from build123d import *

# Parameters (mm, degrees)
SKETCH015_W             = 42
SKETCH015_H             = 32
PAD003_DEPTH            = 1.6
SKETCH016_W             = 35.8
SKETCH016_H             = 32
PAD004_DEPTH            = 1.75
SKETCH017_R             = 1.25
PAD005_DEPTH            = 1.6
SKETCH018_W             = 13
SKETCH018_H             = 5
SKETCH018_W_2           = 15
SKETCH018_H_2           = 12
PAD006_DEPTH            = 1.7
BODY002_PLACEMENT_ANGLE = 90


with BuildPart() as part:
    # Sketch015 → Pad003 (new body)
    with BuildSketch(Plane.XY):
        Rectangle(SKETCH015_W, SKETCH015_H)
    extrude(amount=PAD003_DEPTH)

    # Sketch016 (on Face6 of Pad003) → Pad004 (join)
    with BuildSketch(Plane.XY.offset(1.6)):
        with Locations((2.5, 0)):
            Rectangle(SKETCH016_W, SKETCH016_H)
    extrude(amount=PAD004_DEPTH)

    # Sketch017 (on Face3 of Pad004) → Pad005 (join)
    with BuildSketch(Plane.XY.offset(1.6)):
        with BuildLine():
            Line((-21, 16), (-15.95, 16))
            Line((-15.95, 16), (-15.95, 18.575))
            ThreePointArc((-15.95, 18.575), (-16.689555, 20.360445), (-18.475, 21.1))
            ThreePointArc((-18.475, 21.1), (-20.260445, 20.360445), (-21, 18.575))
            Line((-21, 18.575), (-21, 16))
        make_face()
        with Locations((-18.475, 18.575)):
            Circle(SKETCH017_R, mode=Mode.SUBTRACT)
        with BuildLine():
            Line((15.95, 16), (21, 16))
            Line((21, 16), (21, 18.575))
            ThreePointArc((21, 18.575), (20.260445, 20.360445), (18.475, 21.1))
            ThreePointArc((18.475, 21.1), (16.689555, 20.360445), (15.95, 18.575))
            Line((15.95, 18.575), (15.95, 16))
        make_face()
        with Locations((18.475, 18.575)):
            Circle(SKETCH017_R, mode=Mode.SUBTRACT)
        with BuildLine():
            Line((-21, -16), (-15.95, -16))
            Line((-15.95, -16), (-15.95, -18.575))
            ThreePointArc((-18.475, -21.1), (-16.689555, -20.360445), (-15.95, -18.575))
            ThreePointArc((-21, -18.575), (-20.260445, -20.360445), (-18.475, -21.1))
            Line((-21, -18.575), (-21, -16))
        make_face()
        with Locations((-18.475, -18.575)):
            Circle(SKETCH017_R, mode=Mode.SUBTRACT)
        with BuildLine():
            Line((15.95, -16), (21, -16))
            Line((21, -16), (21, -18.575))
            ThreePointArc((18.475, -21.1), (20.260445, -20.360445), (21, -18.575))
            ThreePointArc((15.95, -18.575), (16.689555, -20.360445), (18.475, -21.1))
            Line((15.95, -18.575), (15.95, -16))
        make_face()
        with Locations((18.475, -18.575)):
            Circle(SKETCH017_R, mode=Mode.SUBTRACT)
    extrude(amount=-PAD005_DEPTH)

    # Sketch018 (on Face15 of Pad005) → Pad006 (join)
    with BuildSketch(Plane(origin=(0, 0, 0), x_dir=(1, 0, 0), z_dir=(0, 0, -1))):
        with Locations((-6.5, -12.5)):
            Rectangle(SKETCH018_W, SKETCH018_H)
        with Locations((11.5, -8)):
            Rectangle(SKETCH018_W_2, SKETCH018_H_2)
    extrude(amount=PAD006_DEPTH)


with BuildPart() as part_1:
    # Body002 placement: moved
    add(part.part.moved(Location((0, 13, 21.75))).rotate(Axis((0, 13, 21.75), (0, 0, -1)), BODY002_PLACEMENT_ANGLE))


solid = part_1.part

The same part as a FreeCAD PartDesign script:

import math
import FreeCAD as App
import Part
import Sketcher


def add_polygon(sketch, points):
    """Adds a closed chain of lines whose ends are joined by coincident constraints."""
    first, n = sketch.GeometryCount, len(points)
    for a, b in zip(points, points[1:] + points[:1]):
        sketch.addGeometry(Part.LineSegment(App.Vector(*a, 0), App.Vector(*b, 0)), False)
    for i in range(n):
        sketch.addConstraint(Sketcher.Constraint("Coincident", first + i, 2, first + (i + 1) % n, 1))

doc = App.newDocument("Part")
body = doc.addObject("PartDesign::Body", "Body")

sketch1 = body.newObject("Sketcher::SketchObject", "Sketch")
sketch1.AttachmentSupport = (doc.getObject("XY_Plane"), [""])
sketch1.MapMode = "FlatFace"
add_polygon(sketch1, [(-21, 16), (-21, -16), (21, -16), (21, 16)])
sketch1.addConstraint(Sketcher.Constraint("Vertical", 0))
sketch1.addConstraint(Sketcher.Constraint("Horizontal", 1))
sketch1.addConstraint(Sketcher.Constraint("Vertical", 2))
sketch1.addConstraint(Sketcher.Constraint("Horizontal", 3))
sketch1.addConstraint(Sketcher.Constraint("Symmetric", 0, 2, 2, 2, -1, 1))
sketch1.addConstraint(Sketcher.Constraint("DistanceX", 1, 1, 1, 2, 42.0))
sketch1.addConstraint(Sketcher.Constraint("DistanceY", 0, 2, 0, 1, 32.0))
pad1 = body.newObject("PartDesign::Pad", "Pad")
pad1.Profile = sketch1
pad1.Length = 1.6

sketch2 = body.newObject("Sketcher::SketchObject", "Sketch001")
sketch2.AttachmentSupport = (doc.getObject("XY_Plane"), [""])
sketch2.MapMode = "FlatFace"
sketch2.AttachmentOffset = App.Placement(App.Vector(0, 0, 1.6), App.Rotation())
add_polygon(sketch2, [(-15.4, 16), (-15.4, -16), (20.4, -16), (20.4, 16)])
sketch2.addConstraint(Sketcher.Constraint("Vertical", 0))
sketch2.addConstraint(Sketcher.Constraint("Horizontal", 1))
sketch2.addConstraint(Sketcher.Constraint("Vertical", 2))
sketch2.addConstraint(Sketcher.Constraint("Horizontal", 3))
sketch2.addConstraint(Sketcher.Constraint("DistanceY", 0, 2, 0, 1, 32.0))
sketch2.addConstraint(Sketcher.Constraint("DistanceX", 1, 1, 1, 2, 35.8))
sketch2.addConstraint(Sketcher.Constraint("DistanceY", 0, 2, -1, 1, 16.0))
sketch2.addConstraint(Sketcher.Constraint("DistanceX", 0, 2, -1, 1, 15.4))
pad2 = body.newObject("PartDesign::Pad", "Pad001")
pad2.Profile = sketch2
pad2.Length = 1.75

sketch3 = body.newObject("Sketcher::SketchObject", "Sketch002")
sketch3.AttachmentSupport = (doc.getObject("XY_Plane"), [""])
sketch3.MapMode = "FlatFace"
sketch3.AttachmentOffset = App.Placement(App.Vector(0, 0, 1.6), App.Rotation())
sketch3.addGeometry(Part.LineSegment(App.Vector(-21, 16, 0), App.Vector(-15.95, 16, 0)), False)
sketch3.addGeometry(Part.LineSegment(App.Vector(-15.95, 16, 0), App.Vector(-15.95, 18.575, 0)), False)
sketch3.addGeometry(Part.ArcOfCircle(Part.Circle(App.Vector(-18.474999, 18.575001, 0), App.Vector(0, 0, 1), 2.524999), math.radians(-0.000029), math.radians(90.000029)), False)
sketch3.addGeometry(Part.ArcOfCircle(Part.Circle(App.Vector(-18.475001, 18.575001, 0), App.Vector(0, 0, 1), 2.524999), math.radians(89.999971), math.radians(180.000029)), False)
sketch3.addGeometry(Part.LineSegment(App.Vector(-21, 18.575, 0), App.Vector(-21, 16, 0)), False)
sketch3.addGeometry(Part.Circle(App.Vector(-18.475, 18.575, 0), App.Vector(0, 0, 1), 1.25), False)
sketch3.addGeometry(Part.LineSegment(App.Vector(15.95, 16, 0), App.Vector(21, 16, 0)), False)
sketch3.addGeometry(Part.LineSegment(App.Vector(21, 16, 0), App.Vector(21, 18.575, 0)), False)
sketch3.addGeometry(Part.ArcOfCircle(Part.Circle(App.Vector(18.475001, 18.575001, 0), App.Vector(0, 0, 1), 2.524999), math.radians(-0.000029), math.radians(90.000029)), False)
sketch3.addGeometry(Part.ArcOfCircle(Part.Circle(App.Vector(18.474999, 18.575001, 0), App.Vector(0, 0, 1), 2.524999), math.radians(89.999971), math.radians(180.000029)), False)
sketch3.addGeometry(Part.LineSegment(App.Vector(15.95, 18.575, 0), App.Vector(15.95, 16, 0)), False)
sketch3.addGeometry(Part.Circle(App.Vector(18.475, 18.575, 0), App.Vector(0, 0, 1), 1.25), False)
sketch3.addGeometry(Part.LineSegment(App.Vector(-15.95, -16, 0), App.Vector(-21, -16, 0)), False)
sketch3.addGeometry(Part.LineSegment(App.Vector(-21, -16, 0), App.Vector(-21, -18.575, 0)), False)
sketch3.addGeometry(Part.ArcOfCircle(Part.Circle(App.Vector(-18.475001, -18.575001, 0), App.Vector(0, 0, 1), 2.524999), math.radians(179.999971), math.radians(270.000029)), False)
sketch3.addGeometry(Part.ArcOfCircle(Part.Circle(App.Vector(-18.474999, -18.575001, 0), App.Vector(0, 0, 1), 2.524999), math.radians(-90.000029), math.radians(0.000029)), False)
sketch3.addGeometry(Part.LineSegment(App.Vector(-15.95, -18.575, 0), App.Vector(-15.95, -16, 0)), False)
sketch3.addGeometry(Part.Circle(App.Vector(-18.475, -18.575, 0), App.Vector(0, 0, 1), 1.25), False)
sketch3.addGeometry(Part.LineSegment(App.Vector(21, -16, 0), App.Vector(15.95, -16, 0)), False)
sketch3.addGeometry(Part.LineSegment(App.Vector(15.95, -16, 0), App.Vector(15.95, -18.575, 0)), False)
sketch3.addGeometry(Part.ArcOfCircle(Part.Circle(App.Vector(18.474999, -18.575001, 0), App.Vector(0, 0, 1), 2.524999), math.radians(179.999971), math.radians(270.000029)), False)
sketch3.addGeometry(Part.ArcOfCircle(Part.Circle(App.Vector(18.475001, -18.575001, 0), App.Vector(0, 0, 1), 2.524999), math.radians(-90.000029), math.radians(0.000029)), False)
sketch3.addGeometry(Part.LineSegment(App.Vector(21, -18.575, 0), App.Vector(21, -16, 0)), False)
sketch3.addGeometry(Part.Circle(App.Vector(18.475, -18.575, 0), App.Vector(0, 0, 1), 1.25), False)
sketch3.addConstraint(Sketcher.Constraint("Coincident", 0, 2, 1, 1))
sketch3.addConstraint(Sketcher.Constraint("Tangent", 1, 2, 2, 1))
sketch3.addConstraint(Sketcher.Constraint("Tangent", 2, 2, 3, 1))
sketch3.addConstraint(Sketcher.Constraint("Tangent", 3, 2, 4, 1))
sketch3.addConstraint(Sketcher.Constraint("Coincident", 4, 2, 0, 1))
sketch3.addConstraint(Sketcher.Constraint("Coincident", 6, 2, 7, 1))
sketch3.addConstraint(Sketcher.Constraint("Tangent", 7, 2, 8, 1))
sketch3.addConstraint(Sketcher.Constraint("Tangent", 8, 2, 9, 1))
sketch3.addConstraint(Sketcher.Constraint("Tangent", 9, 2, 10, 1))
sketch3.addConstraint(Sketcher.Constraint("Coincident", 10, 2, 6, 1))
sketch3.addConstraint(Sketcher.Constraint("Coincident", 12, 2, 13, 1))
sketch3.addConstraint(Sketcher.Constraint("Tangent", 13, 2, 14, 1))
sketch3.addConstraint(Sketcher.Constraint("Tangent", 14, 2, 15, 1))
sketch3.addConstraint(Sketcher.Constraint("Tangent", 15, 2, 16, 1))
sketch3.addConstraint(Sketcher.Constraint("Coincident", 16, 2, 12, 1))
sketch3.addConstraint(Sketcher.Constraint("Coincident", 18, 2, 19, 1))
sketch3.addConstraint(Sketcher.Constraint("Tangent", 19, 2, 20, 1))
sketch3.addConstraint(Sketcher.Constraint("Tangent", 20, 2, 21, 1))
sketch3.addConstraint(Sketcher.Constraint("Tangent", 21, 2, 22, 1))
sketch3.addConstraint(Sketcher.Constraint("Coincident", 22, 2, 18, 1))
sketch3.addConstraint(Sketcher.Constraint("Horizontal", 0))
sketch3.addConstraint(Sketcher.Constraint("Vertical", 1))
sketch3.addConstraint(Sketcher.Constraint("Vertical", 4))
sketch3.addConstraint(Sketcher.Constraint("Horizontal", 6))
sketch3.addConstraint(Sketcher.Constraint("Vertical", 7))
sketch3.addConstraint(Sketcher.Constraint("Vertical", 10))
sketch3.addConstraint(Sketcher.Constraint("Horizontal", 12))
sketch3.addConstraint(Sketcher.Constraint("Vertical", 13))
sketch3.addConstraint(Sketcher.Constraint("Vertical", 16))
sketch3.addConstraint(Sketcher.Constraint("Horizontal", 18))
sketch3.addConstraint(Sketcher.Constraint("Vertical", 19))
sketch3.addConstraint(Sketcher.Constraint("Vertical", 22))
sketch3.addConstraint(Sketcher.Constraint("Coincident", 5, 3, 2, 3))
sketch3.addConstraint(Sketcher.Constraint("Coincident", 11, 3, 8, 3))
sketch3.addConstraint(Sketcher.Constraint("Coincident", 17, 3, 14, 3))
sketch3.addConstraint(Sketcher.Constraint("Coincident", 23, 3, 20, 3))
sketch3.addConstraint(Sketcher.Constraint("Equal", 2, 3))
sketch3.addConstraint(Sketcher.Constraint("Equal", 3, 8))
sketch3.addConstraint(Sketcher.Constraint("Equal", 8, 9))
sketch3.addConstraint(Sketcher.Constraint("Equal", 5, 11))
sketch3.addConstraint(Sketcher.Constraint("Equal", 9, 14))
sketch3.addConstraint(Sketcher.Constraint("Equal", 14, 15))
sketch3.addConstraint(Sketcher.Constraint("Equal", 11, 17))
sketch3.addConstraint(Sketcher.Constraint("Equal", 15, 20))
sketch3.addConstraint(Sketcher.Constraint("Equal", 20, 21))
sketch3.addConstraint(Sketcher.Constraint("Equal", 17, 23))
sketch3.addConstraint(Sketcher.Constraint("Symmetric", 8, 3, 14, 3, -1, 1))
sketch3.addConstraint(Sketcher.Constraint("Symmetric", 2, 3, 20, 3, -1, 1))
sketch3.addConstraint(Sketcher.Constraint("Symmetric", 2, 3, 8, 3, -2))
sketch3.addConstraint(Sketcher.Constraint("Horizontal", 4, 2, 6, 2))
sketch3.addConstraint(Sketcher.Constraint("Horizontal", 16, 2, 18, 2))
sketch3.addConstraint(Sketcher.Constraint("Vertical", 17, 3, 2, 2))
sketch3.addConstraint(Sketcher.Constraint("Vertical", 23, 3, 8, 2))
sketch3.addConstraint(Sketcher.Constraint("Vertical", 2, 2, 14, 2))
sketch3.addConstraint(Sketcher.Constraint("Vertical", 8, 2, 20, 2))
sketch3.addConstraint(Sketcher.Constraint("Equal", 10, 13))
sketch3.addConstraint(Sketcher.Constraint("Diameter", 5, 2.5))
sketch3.addConstraint(Sketcher.Constraint("DistanceY", -1, 1, 0, 2, 16.0))
sketch3.addConstraint(Sketcher.Constraint("DistanceX", 3, 2, -1, 1, 21.0))
sketch3.addConstraint(Sketcher.Constraint("Radius", 2, 2.524999))
sketch3.addConstraint(Sketcher.Constraint("DistanceY", -1, 1, 2, 2, 21.1))
pad3 = body.newObject("PartDesign::Pad", "Pad002")
pad3.Profile = sketch3
pad3.Length = 1.6
pad3.Reversed = True

sketch4 = body.newObject("Sketcher::SketchObject", "Sketch003")
sketch4.AttachmentSupport = (doc.getObject("XY_Plane"), [""])
sketch4.MapMode = "FlatFace"
add_polygon(sketch4, [(-13, 10), (-13, 15), (0, 15), (0, 10)])
add_polygon(sketch4, [(4, 2), (4, 14), (19, 14), (19, 2)])
sketch4.addConstraint(Sketcher.Constraint("Vertical", 0))
sketch4.addConstraint(Sketcher.Constraint("Horizontal", 1))
sketch4.addConstraint(Sketcher.Constraint("Vertical", 2))
sketch4.addConstraint(Sketcher.Constraint("Horizontal", 3))
sketch4.addConstraint(Sketcher.Constraint("Vertical", 4))
sketch4.addConstraint(Sketcher.Constraint("Horizontal", 5))
sketch4.addConstraint(Sketcher.Constraint("Vertical", 6))
sketch4.addConstraint(Sketcher.Constraint("Horizontal", 7))
sketch4.addConstraint(Sketcher.Constraint("PointOnObject", 1, 2, -2))
sketch4.addConstraint(Sketcher.Constraint("DistanceX", 1, 1, 1, 2, 13.0))
sketch4.addConstraint(Sketcher.Constraint("DistanceX", 5, 1, 5, 2, 15.0))
sketch4.addConstraint(Sketcher.Constraint("DistanceY", 0, 1, 0, 2, 5.0))
sketch4.addConstraint(Sketcher.Constraint("DistanceY", 4, 1, 4, 2, 12.0))
sketch4.addConstraint(Sketcher.Constraint("DistanceY", -1, 1, 0, 2, 15.0))
sketch4.addConstraint(Sketcher.Constraint("DistanceX", -1, 1, 4, 2, 4.0))
sketch4.addConstraint(Sketcher.Constraint("DistanceY", -1, 1, 4, 2, 14.0))
pad4 = body.newObject("PartDesign::Pad", "Pad003")
pad4.Profile = sketch4
pad4.Length = 1.7
pad4.Reversed = True
body2 = doc.addObject("PartDesign::Body", "Body001")
doc.recompute()

body.Placement = App.Placement(App.Vector(0, 13, 21.75), App.Rotation(App.Vector(0, 0, -1), 90))
boolean = body2.newObject("PartDesign::Boolean", "Boolean")
boolean.Type = "Fuse"
boolean.addObjects([body])

doc.recompute()
